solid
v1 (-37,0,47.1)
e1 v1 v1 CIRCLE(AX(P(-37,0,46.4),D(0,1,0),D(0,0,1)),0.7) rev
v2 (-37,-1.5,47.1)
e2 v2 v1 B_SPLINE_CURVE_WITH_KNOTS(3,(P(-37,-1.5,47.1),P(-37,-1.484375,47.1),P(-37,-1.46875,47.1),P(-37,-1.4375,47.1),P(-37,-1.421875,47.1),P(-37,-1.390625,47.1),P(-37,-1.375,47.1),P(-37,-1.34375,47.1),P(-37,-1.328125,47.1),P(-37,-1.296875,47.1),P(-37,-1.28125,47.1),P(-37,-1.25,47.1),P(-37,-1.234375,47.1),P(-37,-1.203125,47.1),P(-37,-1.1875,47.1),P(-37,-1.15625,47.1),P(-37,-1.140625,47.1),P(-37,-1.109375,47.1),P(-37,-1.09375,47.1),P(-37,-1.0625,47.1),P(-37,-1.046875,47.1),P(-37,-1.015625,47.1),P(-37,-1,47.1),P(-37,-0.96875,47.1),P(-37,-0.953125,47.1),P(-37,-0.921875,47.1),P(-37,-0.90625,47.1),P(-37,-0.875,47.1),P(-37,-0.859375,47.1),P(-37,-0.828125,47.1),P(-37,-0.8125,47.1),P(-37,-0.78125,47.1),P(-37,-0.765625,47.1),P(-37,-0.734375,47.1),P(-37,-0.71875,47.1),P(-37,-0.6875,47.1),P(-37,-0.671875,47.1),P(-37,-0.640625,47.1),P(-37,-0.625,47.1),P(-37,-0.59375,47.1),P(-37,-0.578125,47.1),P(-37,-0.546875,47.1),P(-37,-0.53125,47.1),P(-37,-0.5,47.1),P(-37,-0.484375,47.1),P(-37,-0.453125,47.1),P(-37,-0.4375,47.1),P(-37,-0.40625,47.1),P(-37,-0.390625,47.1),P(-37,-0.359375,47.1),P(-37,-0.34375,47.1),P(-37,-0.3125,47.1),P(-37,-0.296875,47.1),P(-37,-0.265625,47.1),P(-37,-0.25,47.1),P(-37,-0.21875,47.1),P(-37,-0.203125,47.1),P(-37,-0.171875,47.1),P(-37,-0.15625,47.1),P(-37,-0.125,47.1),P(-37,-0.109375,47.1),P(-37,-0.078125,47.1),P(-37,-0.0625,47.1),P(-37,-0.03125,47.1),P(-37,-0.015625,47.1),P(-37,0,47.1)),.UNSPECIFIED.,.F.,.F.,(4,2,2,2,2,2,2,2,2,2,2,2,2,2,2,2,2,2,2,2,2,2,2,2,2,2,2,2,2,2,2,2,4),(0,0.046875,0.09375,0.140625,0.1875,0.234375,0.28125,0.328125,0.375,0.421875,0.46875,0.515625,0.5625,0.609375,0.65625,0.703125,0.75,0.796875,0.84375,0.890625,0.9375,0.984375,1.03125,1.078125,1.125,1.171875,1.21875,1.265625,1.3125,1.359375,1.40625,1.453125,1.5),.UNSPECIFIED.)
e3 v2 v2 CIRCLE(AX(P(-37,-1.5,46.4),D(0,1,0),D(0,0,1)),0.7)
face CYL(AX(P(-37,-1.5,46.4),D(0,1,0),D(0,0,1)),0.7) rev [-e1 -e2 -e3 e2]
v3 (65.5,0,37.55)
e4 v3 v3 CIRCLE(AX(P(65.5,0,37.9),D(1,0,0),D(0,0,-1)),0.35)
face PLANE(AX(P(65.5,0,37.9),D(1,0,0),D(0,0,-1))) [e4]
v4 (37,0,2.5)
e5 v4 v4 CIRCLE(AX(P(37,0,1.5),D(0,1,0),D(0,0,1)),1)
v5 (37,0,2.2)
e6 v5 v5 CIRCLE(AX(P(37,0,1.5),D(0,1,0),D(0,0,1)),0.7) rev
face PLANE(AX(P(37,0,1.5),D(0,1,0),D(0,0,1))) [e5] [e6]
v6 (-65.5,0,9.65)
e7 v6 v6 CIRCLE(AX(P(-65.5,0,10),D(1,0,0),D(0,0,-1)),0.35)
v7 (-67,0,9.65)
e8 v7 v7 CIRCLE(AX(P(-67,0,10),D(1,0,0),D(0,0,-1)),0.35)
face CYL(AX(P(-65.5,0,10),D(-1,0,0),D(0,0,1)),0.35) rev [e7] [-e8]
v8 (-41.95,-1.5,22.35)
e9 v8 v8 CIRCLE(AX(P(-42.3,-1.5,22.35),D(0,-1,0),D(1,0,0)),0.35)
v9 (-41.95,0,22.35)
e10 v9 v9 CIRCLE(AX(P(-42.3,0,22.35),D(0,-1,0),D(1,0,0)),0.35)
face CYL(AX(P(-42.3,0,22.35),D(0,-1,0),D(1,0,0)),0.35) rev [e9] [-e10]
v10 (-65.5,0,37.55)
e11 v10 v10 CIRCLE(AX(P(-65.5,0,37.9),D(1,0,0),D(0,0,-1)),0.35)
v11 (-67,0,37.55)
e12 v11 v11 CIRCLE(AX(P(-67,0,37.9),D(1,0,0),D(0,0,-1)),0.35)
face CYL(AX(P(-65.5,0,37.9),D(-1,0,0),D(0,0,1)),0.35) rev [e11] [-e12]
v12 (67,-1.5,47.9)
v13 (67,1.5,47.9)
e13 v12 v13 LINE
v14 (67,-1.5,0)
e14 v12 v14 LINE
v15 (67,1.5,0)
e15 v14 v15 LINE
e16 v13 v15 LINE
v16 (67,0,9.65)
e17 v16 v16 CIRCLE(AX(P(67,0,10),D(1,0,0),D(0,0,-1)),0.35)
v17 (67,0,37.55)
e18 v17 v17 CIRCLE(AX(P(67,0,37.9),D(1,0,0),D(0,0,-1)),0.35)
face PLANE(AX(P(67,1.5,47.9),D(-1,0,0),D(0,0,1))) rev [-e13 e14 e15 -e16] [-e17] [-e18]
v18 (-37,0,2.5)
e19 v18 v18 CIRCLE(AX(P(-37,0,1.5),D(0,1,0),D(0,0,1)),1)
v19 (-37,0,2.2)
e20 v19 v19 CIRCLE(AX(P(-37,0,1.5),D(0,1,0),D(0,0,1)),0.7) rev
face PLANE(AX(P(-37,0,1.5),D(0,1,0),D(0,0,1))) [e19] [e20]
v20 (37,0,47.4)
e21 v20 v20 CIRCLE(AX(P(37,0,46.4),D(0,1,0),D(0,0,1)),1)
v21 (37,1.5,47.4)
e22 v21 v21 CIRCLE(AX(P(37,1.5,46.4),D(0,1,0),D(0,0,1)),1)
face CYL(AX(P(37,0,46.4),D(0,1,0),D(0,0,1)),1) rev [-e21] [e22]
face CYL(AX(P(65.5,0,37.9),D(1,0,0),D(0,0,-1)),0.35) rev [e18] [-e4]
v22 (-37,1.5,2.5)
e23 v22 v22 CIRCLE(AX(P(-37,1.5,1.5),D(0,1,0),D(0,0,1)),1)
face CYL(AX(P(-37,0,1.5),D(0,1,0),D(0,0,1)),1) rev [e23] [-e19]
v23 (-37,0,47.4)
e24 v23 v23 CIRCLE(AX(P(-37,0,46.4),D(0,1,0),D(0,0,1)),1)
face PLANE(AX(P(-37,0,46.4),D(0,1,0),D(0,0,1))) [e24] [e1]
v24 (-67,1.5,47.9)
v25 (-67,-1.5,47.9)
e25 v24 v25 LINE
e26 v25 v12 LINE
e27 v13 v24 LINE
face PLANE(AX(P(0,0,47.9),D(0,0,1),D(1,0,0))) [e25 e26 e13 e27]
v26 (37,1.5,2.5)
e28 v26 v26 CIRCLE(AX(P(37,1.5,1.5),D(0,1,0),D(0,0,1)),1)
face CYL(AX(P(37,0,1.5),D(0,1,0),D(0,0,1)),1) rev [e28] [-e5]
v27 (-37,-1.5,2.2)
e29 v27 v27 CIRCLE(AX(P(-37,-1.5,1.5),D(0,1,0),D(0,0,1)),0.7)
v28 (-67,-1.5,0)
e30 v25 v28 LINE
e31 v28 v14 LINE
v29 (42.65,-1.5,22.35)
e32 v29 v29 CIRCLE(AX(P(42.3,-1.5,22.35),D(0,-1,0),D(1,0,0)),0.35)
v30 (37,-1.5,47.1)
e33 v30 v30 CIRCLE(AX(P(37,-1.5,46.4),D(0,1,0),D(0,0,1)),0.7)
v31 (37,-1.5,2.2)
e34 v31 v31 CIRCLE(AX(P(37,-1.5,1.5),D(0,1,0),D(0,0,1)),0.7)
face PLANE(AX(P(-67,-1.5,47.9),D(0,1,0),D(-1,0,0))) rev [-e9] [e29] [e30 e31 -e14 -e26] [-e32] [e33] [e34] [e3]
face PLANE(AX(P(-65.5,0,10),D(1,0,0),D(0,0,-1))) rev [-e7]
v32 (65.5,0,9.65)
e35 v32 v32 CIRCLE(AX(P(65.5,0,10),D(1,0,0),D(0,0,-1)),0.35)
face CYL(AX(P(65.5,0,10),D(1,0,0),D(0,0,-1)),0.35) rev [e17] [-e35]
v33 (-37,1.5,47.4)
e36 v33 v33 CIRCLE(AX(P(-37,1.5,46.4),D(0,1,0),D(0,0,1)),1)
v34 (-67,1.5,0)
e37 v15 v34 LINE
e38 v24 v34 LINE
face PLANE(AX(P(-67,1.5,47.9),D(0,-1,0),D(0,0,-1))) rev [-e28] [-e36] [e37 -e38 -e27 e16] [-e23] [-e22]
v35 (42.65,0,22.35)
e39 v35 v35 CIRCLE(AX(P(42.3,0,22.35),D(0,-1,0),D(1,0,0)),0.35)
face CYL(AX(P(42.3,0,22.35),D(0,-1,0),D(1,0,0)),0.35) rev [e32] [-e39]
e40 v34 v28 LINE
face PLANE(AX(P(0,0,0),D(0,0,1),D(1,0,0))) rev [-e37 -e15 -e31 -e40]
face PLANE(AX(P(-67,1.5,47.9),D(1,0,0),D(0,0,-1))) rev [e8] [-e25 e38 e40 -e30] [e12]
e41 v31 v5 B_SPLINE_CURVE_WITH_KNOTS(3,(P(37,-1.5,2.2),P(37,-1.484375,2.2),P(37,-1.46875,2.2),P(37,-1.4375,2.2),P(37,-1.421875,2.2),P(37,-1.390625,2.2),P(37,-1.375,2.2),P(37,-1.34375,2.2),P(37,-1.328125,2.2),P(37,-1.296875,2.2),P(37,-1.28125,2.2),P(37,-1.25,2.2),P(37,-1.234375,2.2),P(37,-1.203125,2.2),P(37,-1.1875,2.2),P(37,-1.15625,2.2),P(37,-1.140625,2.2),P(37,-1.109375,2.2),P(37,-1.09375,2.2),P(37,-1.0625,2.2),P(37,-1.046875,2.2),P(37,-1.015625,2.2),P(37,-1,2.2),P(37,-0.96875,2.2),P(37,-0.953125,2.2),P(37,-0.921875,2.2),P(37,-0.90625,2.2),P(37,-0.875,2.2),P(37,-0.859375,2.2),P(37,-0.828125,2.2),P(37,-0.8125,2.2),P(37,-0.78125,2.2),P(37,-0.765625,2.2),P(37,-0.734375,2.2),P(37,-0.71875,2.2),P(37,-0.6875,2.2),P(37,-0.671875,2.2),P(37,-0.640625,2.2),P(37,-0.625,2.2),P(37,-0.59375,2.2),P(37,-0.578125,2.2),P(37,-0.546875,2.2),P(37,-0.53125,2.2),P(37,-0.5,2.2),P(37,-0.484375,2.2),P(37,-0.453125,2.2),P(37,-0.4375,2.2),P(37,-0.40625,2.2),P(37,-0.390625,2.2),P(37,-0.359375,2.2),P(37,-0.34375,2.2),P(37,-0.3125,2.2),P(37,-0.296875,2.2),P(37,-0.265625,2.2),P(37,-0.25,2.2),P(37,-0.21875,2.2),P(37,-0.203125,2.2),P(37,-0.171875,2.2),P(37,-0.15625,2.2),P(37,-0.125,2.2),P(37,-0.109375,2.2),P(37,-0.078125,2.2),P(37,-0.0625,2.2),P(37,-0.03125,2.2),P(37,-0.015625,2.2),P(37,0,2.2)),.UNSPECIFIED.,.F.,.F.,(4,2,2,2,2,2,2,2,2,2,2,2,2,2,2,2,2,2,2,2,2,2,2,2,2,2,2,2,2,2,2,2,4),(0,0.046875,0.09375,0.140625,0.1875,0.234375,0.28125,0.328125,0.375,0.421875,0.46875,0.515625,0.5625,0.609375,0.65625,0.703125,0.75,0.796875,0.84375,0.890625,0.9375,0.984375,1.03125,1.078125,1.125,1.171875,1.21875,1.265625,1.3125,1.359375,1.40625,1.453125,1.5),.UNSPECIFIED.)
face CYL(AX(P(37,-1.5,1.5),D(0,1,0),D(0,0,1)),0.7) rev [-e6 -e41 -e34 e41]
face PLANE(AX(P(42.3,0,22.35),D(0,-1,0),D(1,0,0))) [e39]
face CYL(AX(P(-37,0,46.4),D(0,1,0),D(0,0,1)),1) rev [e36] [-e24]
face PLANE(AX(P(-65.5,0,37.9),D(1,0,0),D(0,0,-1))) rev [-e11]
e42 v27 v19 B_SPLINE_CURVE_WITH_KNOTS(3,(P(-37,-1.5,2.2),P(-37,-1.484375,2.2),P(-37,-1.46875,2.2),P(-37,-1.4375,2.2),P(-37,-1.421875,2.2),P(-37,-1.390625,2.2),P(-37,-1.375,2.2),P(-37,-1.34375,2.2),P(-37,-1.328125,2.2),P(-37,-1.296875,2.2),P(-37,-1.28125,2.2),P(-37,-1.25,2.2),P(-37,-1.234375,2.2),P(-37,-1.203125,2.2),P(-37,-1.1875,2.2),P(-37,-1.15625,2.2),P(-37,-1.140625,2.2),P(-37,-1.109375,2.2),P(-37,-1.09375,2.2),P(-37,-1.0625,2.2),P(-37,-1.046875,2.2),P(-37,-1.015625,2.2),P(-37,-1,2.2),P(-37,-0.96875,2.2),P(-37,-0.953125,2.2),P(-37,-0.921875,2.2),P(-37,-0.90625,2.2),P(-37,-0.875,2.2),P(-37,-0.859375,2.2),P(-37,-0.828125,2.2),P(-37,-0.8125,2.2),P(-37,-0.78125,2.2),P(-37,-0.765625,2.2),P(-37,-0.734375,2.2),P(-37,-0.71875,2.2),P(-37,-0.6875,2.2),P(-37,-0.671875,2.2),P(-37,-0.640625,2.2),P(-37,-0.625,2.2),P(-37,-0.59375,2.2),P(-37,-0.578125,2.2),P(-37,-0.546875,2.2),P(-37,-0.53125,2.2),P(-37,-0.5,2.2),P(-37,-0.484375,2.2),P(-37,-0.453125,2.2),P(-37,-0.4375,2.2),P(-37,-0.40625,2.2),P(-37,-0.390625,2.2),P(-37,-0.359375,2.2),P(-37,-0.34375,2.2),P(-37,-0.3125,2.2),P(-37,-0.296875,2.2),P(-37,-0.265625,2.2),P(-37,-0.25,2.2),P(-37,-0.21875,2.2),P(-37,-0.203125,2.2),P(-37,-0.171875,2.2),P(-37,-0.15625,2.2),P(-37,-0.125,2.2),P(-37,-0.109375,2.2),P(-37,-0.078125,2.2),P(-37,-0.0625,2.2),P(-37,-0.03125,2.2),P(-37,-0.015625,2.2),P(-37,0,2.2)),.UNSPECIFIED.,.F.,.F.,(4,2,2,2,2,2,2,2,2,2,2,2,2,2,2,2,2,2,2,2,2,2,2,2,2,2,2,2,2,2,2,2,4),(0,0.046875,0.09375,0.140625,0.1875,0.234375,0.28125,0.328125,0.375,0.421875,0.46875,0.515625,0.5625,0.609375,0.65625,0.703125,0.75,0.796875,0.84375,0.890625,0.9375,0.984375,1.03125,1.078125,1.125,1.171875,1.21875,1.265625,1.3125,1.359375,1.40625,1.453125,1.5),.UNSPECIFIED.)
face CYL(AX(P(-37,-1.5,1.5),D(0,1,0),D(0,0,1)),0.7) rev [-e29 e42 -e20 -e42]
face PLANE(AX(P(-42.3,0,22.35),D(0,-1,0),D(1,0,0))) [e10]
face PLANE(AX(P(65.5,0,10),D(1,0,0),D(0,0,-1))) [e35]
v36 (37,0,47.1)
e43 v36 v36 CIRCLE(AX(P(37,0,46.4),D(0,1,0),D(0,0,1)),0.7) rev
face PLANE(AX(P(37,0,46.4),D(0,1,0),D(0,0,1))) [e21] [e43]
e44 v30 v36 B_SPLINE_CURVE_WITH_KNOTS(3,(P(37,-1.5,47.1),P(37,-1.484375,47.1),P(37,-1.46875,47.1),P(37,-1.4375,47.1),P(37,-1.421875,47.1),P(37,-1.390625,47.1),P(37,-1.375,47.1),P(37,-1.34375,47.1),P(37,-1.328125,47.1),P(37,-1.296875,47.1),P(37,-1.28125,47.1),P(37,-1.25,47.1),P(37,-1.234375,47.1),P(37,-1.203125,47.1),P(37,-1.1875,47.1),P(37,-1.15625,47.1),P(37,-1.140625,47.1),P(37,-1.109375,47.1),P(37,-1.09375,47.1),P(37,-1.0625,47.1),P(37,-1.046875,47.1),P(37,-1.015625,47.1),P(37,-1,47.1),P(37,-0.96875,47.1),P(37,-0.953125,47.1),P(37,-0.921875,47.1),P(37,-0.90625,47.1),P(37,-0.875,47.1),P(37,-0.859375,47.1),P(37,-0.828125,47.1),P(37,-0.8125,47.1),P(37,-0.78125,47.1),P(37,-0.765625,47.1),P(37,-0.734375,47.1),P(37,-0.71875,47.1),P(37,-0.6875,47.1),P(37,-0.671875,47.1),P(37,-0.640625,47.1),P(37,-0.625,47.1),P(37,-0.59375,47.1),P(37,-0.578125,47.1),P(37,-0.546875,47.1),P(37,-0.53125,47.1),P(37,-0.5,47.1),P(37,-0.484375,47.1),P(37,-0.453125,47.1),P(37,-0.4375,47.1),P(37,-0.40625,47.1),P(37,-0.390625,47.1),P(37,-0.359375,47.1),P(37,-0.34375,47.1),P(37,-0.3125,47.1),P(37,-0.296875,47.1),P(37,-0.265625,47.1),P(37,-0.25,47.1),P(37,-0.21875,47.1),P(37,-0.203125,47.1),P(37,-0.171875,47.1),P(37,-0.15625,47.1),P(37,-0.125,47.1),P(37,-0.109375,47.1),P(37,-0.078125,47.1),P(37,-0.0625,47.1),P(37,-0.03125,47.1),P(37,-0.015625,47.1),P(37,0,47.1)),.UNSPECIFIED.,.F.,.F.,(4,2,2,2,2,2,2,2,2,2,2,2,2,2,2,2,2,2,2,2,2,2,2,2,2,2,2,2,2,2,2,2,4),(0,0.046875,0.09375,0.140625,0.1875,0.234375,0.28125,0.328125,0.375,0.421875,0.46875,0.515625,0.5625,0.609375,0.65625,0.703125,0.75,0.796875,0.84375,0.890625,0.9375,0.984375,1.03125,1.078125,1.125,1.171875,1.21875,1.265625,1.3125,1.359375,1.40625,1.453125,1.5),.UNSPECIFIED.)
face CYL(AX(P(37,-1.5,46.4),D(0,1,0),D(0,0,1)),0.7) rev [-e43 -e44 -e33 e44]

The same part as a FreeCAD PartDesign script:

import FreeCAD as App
import Part
import Sketcher

V = App.Vector
Q = App.Units.Quantity

doc = App.newDocument("Part")
params = doc.addObject("Spreadsheet::Sheet", "Params")
for row, (alias, value) in enumerate([
    ("sketch1_width", "134 mm"),
    ("sketch1_height", "3 mm"),
    ("pad1_length", "47.9 mm"),
    ("sketch2_diameter", "1.4 mm"),
    ("sketch3_diameter", "2 mm"),
    ("pocket2_length", "1.5 mm"),
    ("sketch4_diameter", "0.7 mm"),
    ("pocket3_length", "1.5 mm"),
    ("sketch5_diameter", "0.7 mm"),
    ("pocket4_length", "1.5 mm"),
    ("sketch6_diameter", "0.7 mm"),
    ("pocket5_length", "1.5 mm"),
], start=1):
    params.set(f"A{row}", alias)
    params.set(f"B{row}", "=" + value)
    params.setAlias(f"B{row}", alias)

body = doc.addObject("PartDesign::Body", "Body")

sketch1 = body.newObject("Sketcher::SketchObject", "Sketch")
sketch1.AttachmentSupport = (doc.getObject("XY_Plane"), [""])
sketch1.MapMode = "FlatFace"
sketch1.addGeometry([
    Part.LineSegment(V(-67, 1.5, 0), V(-67, -1.5, 0)),
    Part.LineSegment(V(-67, -1.5, 0), V(67, -1.5, 0)),
    Part.LineSegment(V(67, -1.5, 0), V(67, 1.5, 0)),
    Part.LineSegment(V(67, 1.5, 0), V(-67, 1.5, 0)),
], False)
sketch1.addConstraint([
    Sketcher.Constraint("Coincident", 0, 2, 1, 1),
    Sketcher.Constraint("Coincident", 1, 2, 2, 1),
    Sketcher.Constraint("Coincident", 2, 2, 3, 1),
    Sketcher.Constraint("Coincident", 3, 2, 0, 1),
    Sketcher.Constraint("Vertical", 0),
    Sketcher.Constraint("Horizontal", 1),
    Sketcher.Constraint("Vertical", 2),
    Sketcher.Constraint("Horizontal", 3),
    Sketcher.Constraint("Symmetric", 0, 2, 2, 2, -1, 1),
    Sketcher.Constraint("DistanceX", 1, 1, 1, 2, Q("134 mm")),
    Sketcher.Constraint("DistanceY", 0, 2, 0, 1, Q("3 mm")),
])
sketch1.setExpression("Constraints[9]", "Params.sketch1_width")
sketch1.setExpression("Constraints[10]", "Params.sketch1_height")
pad1 = body.newObject("PartDesign::Pad", "Pad")
pad1.Profile = sketch1
pad1.setExpression("Length", "Params.pad1_length")

sketch2 = body.newObject("Sketcher::SketchObject", "Sketch001")
sketch2.AttachmentSupport = (doc.getObject("XZ_Plane"), [""])
sketch2.MapMode = "FlatFace"
sketch2.AttachmentOffset = App.Placement(V(0, 0, -1.5), App.Rotation())
sketch2.addGeometry([
    Part.Circle(V(-37, 46.4, 0), V(0, 0, 1), 0.7),
    Part.Circle(V(37, 46.4, 0), V(0, 0, 1), 0.7),
    Part.Circle(V(-37, 1.5, 0), V(0, 0, 1), 0.7),
    Part.Circle(V(37, 1.5, 0), V(0, 0, 1), 0.7),
], False)
sketch2.addConstraint([
    Sketcher.Constraint("Equal", 0, 1),
    Sketcher.Constraint("Equal", 1, 2),
    Sketcher.Constraint("Equal", 2, 3),
    Sketcher.Constraint("Symmetric", 0, 3, 1, 3, -2),
    Sketcher.Constraint("Symmetric", 2, 3, 3, 3, -2),
    Sketcher.Constraint("Vertical", 0, 3, 2, 3),
    Sketcher.Constraint("Diameter", 0, Q("1.4 mm")),
    Sketcher.Constraint("DistanceX", 0, 3, -1, 1, Q("37 mm")),
    Sketcher.Constraint("DistanceY", -1, 1, 0, 3, Q("46.4 mm")),
    Sketcher.Constraint("DistanceY", -1, 1, 2, 3, Q("1.5 mm")),
])
sketch2.setExpression("Constraints[6]", "Params.sketch2_diameter")
pocket1 = body.newObject("PartDesign::Pocket", "Pocket")
pocket1.Profile = sketch2
pocket1.Type = "ThroughAll"
pocket1.Reversed = True

sketch3 = body.newObject("Sketcher::SketchObject", "Sketch002")
sketch3.AttachmentSupport = (doc.getObject("XZ_Plane"), [""])
sketch3.MapMode = "FlatFace"
sketch3.AttachmentOffset = App.Placement(V(0, 0, -1.5), App.Rotation())
sketch3.addGeometry([
    Part.Circle(V(-37, 46.4, 0), V(0, 0, 1), 1),
    Part.Circle(V(37, 46.4, 0), V(0, 0, 1), 1),
    Part.Circle(V(37, 1.5, 0), V(0, 0, 1), 1),
    Part.Circle(V(-37, 1.5, 0), V(0, 0, 1), 1),
], False)
sketch3.addConstraint([
    Sketcher.Constraint("Equal", 0, 1),
    Sketcher.Constraint("Equal", 1, 2),
    Sketcher.Constraint("Equal", 2, 3),
    Sketcher.Constraint("Symmetric", 0, 3, 1, 3, -2),
    Sketcher.Constraint("Symmetric", 2, 3, 3, 3, -2),
    Sketcher.Constraint("Vertical", 1, 3, 2, 3),
    Sketcher.Constraint("Diameter", 0, Q("2 mm")),
    Sketcher.Constraint("DistanceX", 0, 3, -1, 1, Q("37 mm")),
    Sketcher.Constraint("DistanceY", -1, 1, 0, 3, Q("46.4 mm")),
    Sketcher.Constraint("DistanceY", -1, 1, 2, 3, Q("1.5 mm")),
])
sketch3.setExpression("Constraints[6]", "Params.sketch3_diameter")
pocket2 = body.newObject("PartDesign::Pocket", "Pocket001")
pocket2.Profile = sketch3
pocket2.setExpression("Length", "Params.pocket2_length")
pocket2.Reversed = True

sketch4 = body.newObject("Sketcher::SketchObject", "Sketch003")
sketch4.AttachmentSupport = (doc.getObject("XZ_Plane"), [""])
sketch4.MapMode = "FlatFace"
sketch4.AttachmentOffset = App.Placement(V(0, 0, 1.5), App.Rotation())
sketch4.addGeometry([
    Part.Circle(V(-42.3, 22.35, 0), V(0, 0, 1), 0.35),
    Part.Circle(V(42.3, 22.35, 0), V(0, 0, 1), 0.35),
], False)
sketch4.addConstraint([
    Sketcher.Constraint("Equal", 0, 1),
    Sketcher.Constraint("Symmetric", 0, 3, 1, 3, -2),
    Sketcher.Constraint("Diameter", 0, Q("0.7 mm")),
    Sketcher.Constraint("DistanceX", 0, 3, -1, 1, Q("42.3 mm")),
    Sketcher.Constraint("DistanceY", -1, 1, 0, 3, Q("22.35 mm")),
])
sketch4.setExpression("Constraints[2]", "Params.sketch4_diameter")
pocket3 = body.newObject("PartDesign::Pocket", "Pocket002")
pocket3.Profile = sketch4
pocket3.setExpression("Length", "Params.pocket3_length")

sketch5 = body.newObject("Sketcher::SketchObject", "Sketch004")
sketch5.AttachmentSupport = (doc.getObject("YZ_Plane"), [""])
sketch5.MapMode = "FlatFace"
sketch5.AttachmentOffset = App.Placement(V(0, 0, 67), App.Rotation())
sketch5.addGeometry([
    Part.Circle(V(0, 37.9, 0), V(0, 0, 1), 0.35),
    Part.Circle(V(0, 10, 0), V(0, 0, 1), 0.35),
], False)
sketch5.addConstraint([
    Sketcher.Constraint("Equal", 0, 1),
    Sketcher.Constraint("PointOnObject", 0, 3, -2),
    Sketcher.Constraint("PointOnObject", 1, 3, -2),
    Sketcher.Constraint("Diameter", 0, Q("0.7 mm")),
    Sketcher.Constraint("DistanceY", -1, 1, 1, 3, Q("10 mm")),
    Sketcher.Constraint("DistanceY", -1, 1, 0, 3, Q("37.9 mm")),
])
sketch5.setExpression("Constraints[3]", "Params.sketch5_diameter")
pocket4 = body.newObject("PartDesign::Pocket", "Pocket003")
pocket4.Profile = sketch5
pocket4.setExpression("Length", "Params.pocket4_length")

sketch6 = body.newObject("Sketcher::SketchObject", "Sketch005")
sketch6.AttachmentSupport = (doc.getObject("YZ_Plane"), [""])
sketch6.MapMode = "FlatFace"
sketch6.AttachmentOffset = App.Placement(V(0, 0, -65.5), App.Rotation())
sketch6.addGeometry([
    Part.Circle(V(0, 37.9, 0), V(0, 0, 1), 0.35),
    Part.Circle(V(0, 10, 0), V(0, 0, 1), 0.35),
], False)
sketch6.addConstraint([
    Sketcher.Constraint("Equal", 0, 1),
    Sketcher.Constraint("PointOnObject", 0, 3, -2),
    Sketcher.Constraint("PointOnObject", 1, 3, -2),
    Sketcher.Constraint("Diameter", 0, Q("0.7 mm")),
    Sketcher.Constraint("DistanceY", -1, 1, 1, 3, Q("10 mm")),
    Sketcher.Constraint("DistanceY", -1, 1, 0, 3, Q("37.9 mm")),
])
sketch6.setExpression("Constraints[3]", "Params.sketch6_diameter")
pocket5 = body.newObject("PartDesign::Pocket", "Pocket004")
pocket5.Profile = sketch6
pocket5.setExpression("Length", "Params.pocket5_length")

doc.recompute()
